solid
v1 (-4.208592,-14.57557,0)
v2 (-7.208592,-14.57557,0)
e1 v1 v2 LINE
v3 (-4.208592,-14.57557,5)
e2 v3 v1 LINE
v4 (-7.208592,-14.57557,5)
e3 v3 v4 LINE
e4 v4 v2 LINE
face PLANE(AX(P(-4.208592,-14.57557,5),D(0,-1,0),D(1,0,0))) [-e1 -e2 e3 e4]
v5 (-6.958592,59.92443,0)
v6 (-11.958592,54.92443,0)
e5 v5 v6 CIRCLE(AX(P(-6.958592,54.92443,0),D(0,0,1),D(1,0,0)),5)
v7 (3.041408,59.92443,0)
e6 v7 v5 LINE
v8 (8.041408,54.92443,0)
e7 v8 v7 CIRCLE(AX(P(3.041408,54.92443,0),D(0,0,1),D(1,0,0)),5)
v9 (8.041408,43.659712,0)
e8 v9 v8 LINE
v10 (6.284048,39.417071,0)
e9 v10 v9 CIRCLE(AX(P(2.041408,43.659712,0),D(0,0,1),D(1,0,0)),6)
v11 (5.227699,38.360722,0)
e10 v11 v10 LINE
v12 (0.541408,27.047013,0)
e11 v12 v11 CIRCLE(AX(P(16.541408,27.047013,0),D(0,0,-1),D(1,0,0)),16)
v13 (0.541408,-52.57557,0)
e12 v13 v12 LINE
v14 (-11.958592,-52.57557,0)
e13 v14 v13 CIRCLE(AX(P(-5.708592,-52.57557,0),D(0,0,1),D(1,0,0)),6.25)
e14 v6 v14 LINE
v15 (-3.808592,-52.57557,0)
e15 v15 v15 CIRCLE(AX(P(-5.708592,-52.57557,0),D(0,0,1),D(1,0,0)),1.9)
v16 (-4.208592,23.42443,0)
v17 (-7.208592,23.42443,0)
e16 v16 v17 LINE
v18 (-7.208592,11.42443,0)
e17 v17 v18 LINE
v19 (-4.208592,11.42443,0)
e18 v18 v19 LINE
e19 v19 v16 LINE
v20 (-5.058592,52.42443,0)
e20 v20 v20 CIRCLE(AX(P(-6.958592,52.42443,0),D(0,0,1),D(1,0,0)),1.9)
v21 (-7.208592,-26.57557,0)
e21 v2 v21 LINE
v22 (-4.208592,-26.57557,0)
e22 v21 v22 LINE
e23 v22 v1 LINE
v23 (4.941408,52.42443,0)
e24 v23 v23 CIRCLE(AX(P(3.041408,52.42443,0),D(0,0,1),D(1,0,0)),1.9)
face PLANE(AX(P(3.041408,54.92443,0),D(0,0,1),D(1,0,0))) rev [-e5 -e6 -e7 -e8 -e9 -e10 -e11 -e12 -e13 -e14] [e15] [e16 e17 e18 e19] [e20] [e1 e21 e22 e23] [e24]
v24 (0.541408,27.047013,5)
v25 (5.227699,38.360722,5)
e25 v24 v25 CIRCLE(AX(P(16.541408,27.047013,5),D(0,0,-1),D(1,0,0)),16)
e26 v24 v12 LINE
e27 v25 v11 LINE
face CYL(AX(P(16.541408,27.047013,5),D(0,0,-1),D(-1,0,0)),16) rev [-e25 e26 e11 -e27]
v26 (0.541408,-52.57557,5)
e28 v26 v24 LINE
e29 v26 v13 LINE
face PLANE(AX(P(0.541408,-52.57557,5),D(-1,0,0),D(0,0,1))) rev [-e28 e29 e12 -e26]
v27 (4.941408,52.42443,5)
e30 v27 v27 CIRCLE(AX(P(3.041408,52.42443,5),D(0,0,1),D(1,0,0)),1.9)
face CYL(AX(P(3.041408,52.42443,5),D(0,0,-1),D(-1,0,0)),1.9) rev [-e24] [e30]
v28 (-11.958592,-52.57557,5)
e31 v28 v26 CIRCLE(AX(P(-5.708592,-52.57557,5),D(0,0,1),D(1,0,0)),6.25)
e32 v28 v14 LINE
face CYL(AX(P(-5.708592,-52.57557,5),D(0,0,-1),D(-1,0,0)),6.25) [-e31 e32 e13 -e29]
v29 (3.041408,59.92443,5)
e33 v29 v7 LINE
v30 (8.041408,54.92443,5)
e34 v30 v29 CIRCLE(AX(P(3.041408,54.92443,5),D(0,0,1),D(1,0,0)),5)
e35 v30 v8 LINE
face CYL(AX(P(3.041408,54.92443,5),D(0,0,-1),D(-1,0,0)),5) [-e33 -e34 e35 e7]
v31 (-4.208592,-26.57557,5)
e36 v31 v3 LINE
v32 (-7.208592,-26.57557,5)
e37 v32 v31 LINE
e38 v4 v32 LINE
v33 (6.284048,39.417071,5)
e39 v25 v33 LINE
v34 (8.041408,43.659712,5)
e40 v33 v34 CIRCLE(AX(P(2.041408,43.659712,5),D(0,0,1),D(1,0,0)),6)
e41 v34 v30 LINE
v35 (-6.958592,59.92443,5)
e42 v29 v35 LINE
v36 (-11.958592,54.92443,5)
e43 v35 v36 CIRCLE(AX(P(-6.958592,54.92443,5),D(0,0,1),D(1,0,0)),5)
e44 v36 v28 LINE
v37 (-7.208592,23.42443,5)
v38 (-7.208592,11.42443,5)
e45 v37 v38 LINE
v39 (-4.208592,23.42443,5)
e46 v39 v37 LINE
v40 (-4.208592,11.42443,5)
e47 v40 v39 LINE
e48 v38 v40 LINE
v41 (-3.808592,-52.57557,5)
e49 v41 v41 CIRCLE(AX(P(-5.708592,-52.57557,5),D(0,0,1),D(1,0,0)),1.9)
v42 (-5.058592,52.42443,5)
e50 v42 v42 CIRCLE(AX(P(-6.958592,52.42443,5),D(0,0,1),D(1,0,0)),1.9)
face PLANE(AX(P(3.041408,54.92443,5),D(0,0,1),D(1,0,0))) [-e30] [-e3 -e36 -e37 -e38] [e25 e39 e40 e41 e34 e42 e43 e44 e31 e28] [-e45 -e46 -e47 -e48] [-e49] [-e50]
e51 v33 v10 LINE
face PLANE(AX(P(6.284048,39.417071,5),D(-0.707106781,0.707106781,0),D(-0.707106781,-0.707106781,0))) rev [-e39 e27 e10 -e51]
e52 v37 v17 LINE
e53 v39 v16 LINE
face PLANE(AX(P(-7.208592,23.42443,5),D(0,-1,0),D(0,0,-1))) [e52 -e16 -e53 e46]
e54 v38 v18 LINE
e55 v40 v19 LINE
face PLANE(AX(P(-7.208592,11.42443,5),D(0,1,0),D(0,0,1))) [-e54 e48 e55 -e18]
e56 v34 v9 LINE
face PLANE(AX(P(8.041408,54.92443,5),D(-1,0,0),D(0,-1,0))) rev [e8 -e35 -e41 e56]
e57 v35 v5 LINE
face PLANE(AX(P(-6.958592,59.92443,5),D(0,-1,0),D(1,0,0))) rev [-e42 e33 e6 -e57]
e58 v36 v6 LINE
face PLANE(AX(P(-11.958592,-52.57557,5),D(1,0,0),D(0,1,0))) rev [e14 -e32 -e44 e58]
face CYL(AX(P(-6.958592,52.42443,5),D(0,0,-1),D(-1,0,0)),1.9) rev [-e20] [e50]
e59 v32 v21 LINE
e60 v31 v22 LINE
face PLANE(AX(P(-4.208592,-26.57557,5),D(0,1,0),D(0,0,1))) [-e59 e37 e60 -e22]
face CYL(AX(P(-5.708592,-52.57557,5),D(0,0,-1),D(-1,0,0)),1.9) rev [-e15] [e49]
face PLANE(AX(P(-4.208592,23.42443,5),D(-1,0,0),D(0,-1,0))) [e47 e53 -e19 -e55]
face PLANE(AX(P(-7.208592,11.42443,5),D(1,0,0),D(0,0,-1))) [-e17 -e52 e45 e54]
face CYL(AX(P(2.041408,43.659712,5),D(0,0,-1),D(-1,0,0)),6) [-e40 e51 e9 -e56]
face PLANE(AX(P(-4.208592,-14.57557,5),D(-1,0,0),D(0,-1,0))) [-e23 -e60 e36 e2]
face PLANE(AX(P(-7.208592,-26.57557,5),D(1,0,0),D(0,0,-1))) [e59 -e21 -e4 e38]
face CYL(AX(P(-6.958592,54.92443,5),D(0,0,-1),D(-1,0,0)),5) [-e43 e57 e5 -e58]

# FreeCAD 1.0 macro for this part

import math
import FreeCAD as App
import Part
import Sketcher

V = App.Vector
Q = App.Units.Quantity


def add_polygon(sketch, points):
    """Adds a closed chain of lines whose ends are joined by coincident constraints."""
    first, n = sketch.GeometryCount, len(points)
    for a, b in zip(points, points[1:] + points[:1]):
        sketch.addGeometry(Part.LineSegment(App.Vector(*a, 0), App.Vector(*b, 0)), False)
    for i in range(n):
        sketch.addConstraint(Sketcher.Constraint("Coincident", first + i, 2, first + (i + 1) % n, 1))

doc = App.newDocument("Part")
body = doc.addObject("PartDesign::Body", "Body")

# Sketch on XY plane
sketch1 = body.newObject("Sketcher::SketchObject", "Sketch")
sketch1.AttachmentSupport = (doc.getObject("XY_Plane"), [""])
sketch1.MapMode = "FlatFace"
sketch1.addGeometry(Part.LineSegment(V(3.041408, 59.92443, 0), V(-6.958592, 59.92443, 0)), False)  # 0
sketch1.addGeometry(Part.ArcOfCircle(Part.Circle(V(-6.958592, 54.92443, 0), V(0, 0, 1), 5), math.radians(90), math.radians(180)), False)  # 1
sketch1.addGeometry(Part.LineSegment(V(-11.958592, 54.92443, 0), V(-11.958592, -52.57557, 0)), False)  # 2
sketch1.addGeometry(Part.ArcOfCircle(Part.Circle(V(-5.708592, -52.57557, 0), V(0, 0, 1), 6.25), math.radians(180), math.radians(360)), False)  # 3
sketch1.addGeometry(Part.LineSegment(V(0.541408, -52.57557, 0), V(0.541408, 27.047013, 0)), False)  # 4
sketch1.addGeometry(Part.ArcOfCircle(Part.Circle(V(16.541408, 27.047013, 0), V(0, 0, 1), 16), math.radians(135), math.radians(180)), False)  # 5
sketch1.addGeometry(Part.LineSegment(V(5.227699, 38.360722, 0), V(6.284048, 39.417071, 0)), False)  # 6
sketch1.addGeometry(Part.ArcOfCircle(Part.Circle(V(2.041408, 43.659712, 0), V(0, 0, 1), 6), math.radians(-45), math.radians(0)), False)  # 7
sketch1.addGeometry(Part.LineSegment(V(8.041408, 43.659712, 0), V(8.041408, 54.92443, 0)), False)  # 8
sketch1.addGeometry(Part.ArcOfCircle(Part.Circle(V(3.041408, 54.92443, 0), V(0, 0, 1), 5), math.radians(0), math.radians(90)), False)  # 9
sketch1.addGeometry(Part.Circle(V(-5.708592, -52.57557, 0), V(0, 0, 1), 1.9), False)  # 10
add_polygon(sketch1, [(-7.208592, -26.57557), (-7.208592, -14.57557), (-4.208592, -14.57557), (-4.208592, -26.57557)])  # lines 11-14
sketch1.addGeometry(Part.Circle(V(3.041408, 52.42443, 0), V(0, 0, 1), 1.9), False)  # 15
add_polygon(sketch1, [(-7.208592, 11.42443), (-7.208592, 23.42443), (-4.208592, 23.42443), (-4.208592, 11.42443)])  # lines 16-19
sketch1.addGeometry(Part.Circle(V(-6.958592, 52.42443, 0), V(0, 0, 1), 1.9), False)  # 20
sketch1.addConstraint([
    Sketcher.Constraint("Tangent", 0, 2, 1, 1),
    Sketcher.Constraint("Tangent", 1, 2, 2, 1),
    Sketcher.Constraint("Tangent", 2, 2, 3, 1),
    Sketcher.Constraint("Tangent", 3, 2, 4, 1),
    Sketcher.Constraint("Tangent", 4, 2, 5, 2),
    Sketcher.Constraint("Tangent", 5, 1, 6, 1),
    Sketcher.Constraint("Tangent", 6, 2, 7, 1),
    Sketcher.Constraint("Tangent", 7, 2, 8, 1),
    Sketcher.Constraint("Tangent", 8, 2, 9, 1),
    Sketcher.Constraint("Tangent", 9, 2, 0, 1),
    Sketcher.Constraint("Horizontal", 0),
    Sketcher.Constraint("Vertical", 2),
    Sketcher.Constraint("Vertical", 4),
    Sketcher.Constraint("Vertical", 8),
    Sketcher.Constraint("Vertical", 11),
    Sketcher.Constraint("Horizontal", 12),
    Sketcher.Constraint("Vertical", 13),
    Sketcher.Constraint("Horizontal", 14),
    Sketcher.Constraint("Vertical", 16),
    Sketcher.Constraint("Horizontal", 17),
    Sketcher.Constraint("Vertical", 18),
    Sketcher.Constraint("Horizontal", 19),
    Sketcher.Constraint("Coincident", 10, 3, 3, 3),
    Sketcher.Constraint("Equal", 1, 9),
    Sketcher.Constraint("Equal", 10, 15),
    Sketcher.Constraint("Equal", 15, 20),
    Sketcher.Constraint("Horizontal", 15, 3, 20, 3),
    Sketcher.Constraint("Vertical", 9, 3, 15, 3),
    Sketcher.Constraint("Vertical", 1, 3, 20, 3),
    Sketcher.Constraint("Vertical", 14, 2, 16, 2),
    Sketcher.Constraint("Vertical", 13, 2, 17, 2),
    Sketcher.Constraint("Equal", 13, 16),
    Sketcher.Constraint("Radius", 1, 5.0),
    Sketcher.Constraint("Radius", 5, 16.0),
    Sketcher.Constraint("Radius", 7, 6.0),
    Sketcher.Constraint("Diameter", 10, 3.8),
    Sketcher.Constraint("DistanceX", 0, 2, 0, 1, 10.0),
    Sketcher.Constraint("DistanceX", 12, 1, 12, 2, 3.0),
    Sketcher.Constraint("DistanceY", 11, 1, 11, 2, 12.0),
    Sketcher.Constraint("Angle", 6, Q("45 deg")),
    Sketcher.Constraint("Radius", 3, 6.25),
    Sketcher.Constraint("DistanceY", 2, 2, 2, 1, 107.5),
    Sketcher.Constraint("DistanceY", 3, 3, 15, 3, 105.0),
    Sketcher.Constraint("DistanceY", 3, 3, 11, 2, 38.0),
    Sketcher.Constraint("DistanceY", 12, 2, 18, 2, 26.0),
    Sketcher.Constraint("DistanceX", 11, 2, 3, 3, 1.5),
    Sketcher.Constraint("DistanceY", 8, 1, 8, 2, 11.264719),
    Sketcher.Constraint("DistanceX", -1, 1, 5, 1, 5.227699),
    Sketcher.Constraint("DistanceY", -1, 1, 1, 3, 54.92443),
])
pad1 = body.newObject("PartDesign::Pad", "Pad")
pad1.Profile = sketch1
pad1.Length = 5

doc.recompute()
